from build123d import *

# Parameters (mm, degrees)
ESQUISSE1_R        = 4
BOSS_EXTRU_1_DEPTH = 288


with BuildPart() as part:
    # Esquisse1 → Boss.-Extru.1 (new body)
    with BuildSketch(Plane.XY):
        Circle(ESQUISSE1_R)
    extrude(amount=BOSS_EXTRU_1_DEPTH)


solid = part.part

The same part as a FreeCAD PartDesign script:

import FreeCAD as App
import Part
import Sketcher
from FreeCAD import Vector

doc = App.newDocument("Part")
body = doc.addObject("PartDesign::Body", "Body")

# Sketch on XY plane
sketch1 = body.newObject("Sketcher::SketchObject", "Sketch")
sketch1.AttachmentSupport = (doc.getObject("XY_Plane"), [""])
sketch1.MapMode = "FlatFace"
sketch1.addGeometry(Part.Circle(Vector(0, 0, 0), Vector(0, 0, 1), 4), False)
sketch1.addConstraint(Sketcher.Constraint("Coincident", 0, 3, -1, 1))
sketch1.addConstraint(Sketcher.Constraint("Diameter", 0, 8.0))
pad1 = body.newObject("PartDesign::Pad", "Pad")
pad1.Profile = sketch1
pad1.Length = 288

doc.recompute()
